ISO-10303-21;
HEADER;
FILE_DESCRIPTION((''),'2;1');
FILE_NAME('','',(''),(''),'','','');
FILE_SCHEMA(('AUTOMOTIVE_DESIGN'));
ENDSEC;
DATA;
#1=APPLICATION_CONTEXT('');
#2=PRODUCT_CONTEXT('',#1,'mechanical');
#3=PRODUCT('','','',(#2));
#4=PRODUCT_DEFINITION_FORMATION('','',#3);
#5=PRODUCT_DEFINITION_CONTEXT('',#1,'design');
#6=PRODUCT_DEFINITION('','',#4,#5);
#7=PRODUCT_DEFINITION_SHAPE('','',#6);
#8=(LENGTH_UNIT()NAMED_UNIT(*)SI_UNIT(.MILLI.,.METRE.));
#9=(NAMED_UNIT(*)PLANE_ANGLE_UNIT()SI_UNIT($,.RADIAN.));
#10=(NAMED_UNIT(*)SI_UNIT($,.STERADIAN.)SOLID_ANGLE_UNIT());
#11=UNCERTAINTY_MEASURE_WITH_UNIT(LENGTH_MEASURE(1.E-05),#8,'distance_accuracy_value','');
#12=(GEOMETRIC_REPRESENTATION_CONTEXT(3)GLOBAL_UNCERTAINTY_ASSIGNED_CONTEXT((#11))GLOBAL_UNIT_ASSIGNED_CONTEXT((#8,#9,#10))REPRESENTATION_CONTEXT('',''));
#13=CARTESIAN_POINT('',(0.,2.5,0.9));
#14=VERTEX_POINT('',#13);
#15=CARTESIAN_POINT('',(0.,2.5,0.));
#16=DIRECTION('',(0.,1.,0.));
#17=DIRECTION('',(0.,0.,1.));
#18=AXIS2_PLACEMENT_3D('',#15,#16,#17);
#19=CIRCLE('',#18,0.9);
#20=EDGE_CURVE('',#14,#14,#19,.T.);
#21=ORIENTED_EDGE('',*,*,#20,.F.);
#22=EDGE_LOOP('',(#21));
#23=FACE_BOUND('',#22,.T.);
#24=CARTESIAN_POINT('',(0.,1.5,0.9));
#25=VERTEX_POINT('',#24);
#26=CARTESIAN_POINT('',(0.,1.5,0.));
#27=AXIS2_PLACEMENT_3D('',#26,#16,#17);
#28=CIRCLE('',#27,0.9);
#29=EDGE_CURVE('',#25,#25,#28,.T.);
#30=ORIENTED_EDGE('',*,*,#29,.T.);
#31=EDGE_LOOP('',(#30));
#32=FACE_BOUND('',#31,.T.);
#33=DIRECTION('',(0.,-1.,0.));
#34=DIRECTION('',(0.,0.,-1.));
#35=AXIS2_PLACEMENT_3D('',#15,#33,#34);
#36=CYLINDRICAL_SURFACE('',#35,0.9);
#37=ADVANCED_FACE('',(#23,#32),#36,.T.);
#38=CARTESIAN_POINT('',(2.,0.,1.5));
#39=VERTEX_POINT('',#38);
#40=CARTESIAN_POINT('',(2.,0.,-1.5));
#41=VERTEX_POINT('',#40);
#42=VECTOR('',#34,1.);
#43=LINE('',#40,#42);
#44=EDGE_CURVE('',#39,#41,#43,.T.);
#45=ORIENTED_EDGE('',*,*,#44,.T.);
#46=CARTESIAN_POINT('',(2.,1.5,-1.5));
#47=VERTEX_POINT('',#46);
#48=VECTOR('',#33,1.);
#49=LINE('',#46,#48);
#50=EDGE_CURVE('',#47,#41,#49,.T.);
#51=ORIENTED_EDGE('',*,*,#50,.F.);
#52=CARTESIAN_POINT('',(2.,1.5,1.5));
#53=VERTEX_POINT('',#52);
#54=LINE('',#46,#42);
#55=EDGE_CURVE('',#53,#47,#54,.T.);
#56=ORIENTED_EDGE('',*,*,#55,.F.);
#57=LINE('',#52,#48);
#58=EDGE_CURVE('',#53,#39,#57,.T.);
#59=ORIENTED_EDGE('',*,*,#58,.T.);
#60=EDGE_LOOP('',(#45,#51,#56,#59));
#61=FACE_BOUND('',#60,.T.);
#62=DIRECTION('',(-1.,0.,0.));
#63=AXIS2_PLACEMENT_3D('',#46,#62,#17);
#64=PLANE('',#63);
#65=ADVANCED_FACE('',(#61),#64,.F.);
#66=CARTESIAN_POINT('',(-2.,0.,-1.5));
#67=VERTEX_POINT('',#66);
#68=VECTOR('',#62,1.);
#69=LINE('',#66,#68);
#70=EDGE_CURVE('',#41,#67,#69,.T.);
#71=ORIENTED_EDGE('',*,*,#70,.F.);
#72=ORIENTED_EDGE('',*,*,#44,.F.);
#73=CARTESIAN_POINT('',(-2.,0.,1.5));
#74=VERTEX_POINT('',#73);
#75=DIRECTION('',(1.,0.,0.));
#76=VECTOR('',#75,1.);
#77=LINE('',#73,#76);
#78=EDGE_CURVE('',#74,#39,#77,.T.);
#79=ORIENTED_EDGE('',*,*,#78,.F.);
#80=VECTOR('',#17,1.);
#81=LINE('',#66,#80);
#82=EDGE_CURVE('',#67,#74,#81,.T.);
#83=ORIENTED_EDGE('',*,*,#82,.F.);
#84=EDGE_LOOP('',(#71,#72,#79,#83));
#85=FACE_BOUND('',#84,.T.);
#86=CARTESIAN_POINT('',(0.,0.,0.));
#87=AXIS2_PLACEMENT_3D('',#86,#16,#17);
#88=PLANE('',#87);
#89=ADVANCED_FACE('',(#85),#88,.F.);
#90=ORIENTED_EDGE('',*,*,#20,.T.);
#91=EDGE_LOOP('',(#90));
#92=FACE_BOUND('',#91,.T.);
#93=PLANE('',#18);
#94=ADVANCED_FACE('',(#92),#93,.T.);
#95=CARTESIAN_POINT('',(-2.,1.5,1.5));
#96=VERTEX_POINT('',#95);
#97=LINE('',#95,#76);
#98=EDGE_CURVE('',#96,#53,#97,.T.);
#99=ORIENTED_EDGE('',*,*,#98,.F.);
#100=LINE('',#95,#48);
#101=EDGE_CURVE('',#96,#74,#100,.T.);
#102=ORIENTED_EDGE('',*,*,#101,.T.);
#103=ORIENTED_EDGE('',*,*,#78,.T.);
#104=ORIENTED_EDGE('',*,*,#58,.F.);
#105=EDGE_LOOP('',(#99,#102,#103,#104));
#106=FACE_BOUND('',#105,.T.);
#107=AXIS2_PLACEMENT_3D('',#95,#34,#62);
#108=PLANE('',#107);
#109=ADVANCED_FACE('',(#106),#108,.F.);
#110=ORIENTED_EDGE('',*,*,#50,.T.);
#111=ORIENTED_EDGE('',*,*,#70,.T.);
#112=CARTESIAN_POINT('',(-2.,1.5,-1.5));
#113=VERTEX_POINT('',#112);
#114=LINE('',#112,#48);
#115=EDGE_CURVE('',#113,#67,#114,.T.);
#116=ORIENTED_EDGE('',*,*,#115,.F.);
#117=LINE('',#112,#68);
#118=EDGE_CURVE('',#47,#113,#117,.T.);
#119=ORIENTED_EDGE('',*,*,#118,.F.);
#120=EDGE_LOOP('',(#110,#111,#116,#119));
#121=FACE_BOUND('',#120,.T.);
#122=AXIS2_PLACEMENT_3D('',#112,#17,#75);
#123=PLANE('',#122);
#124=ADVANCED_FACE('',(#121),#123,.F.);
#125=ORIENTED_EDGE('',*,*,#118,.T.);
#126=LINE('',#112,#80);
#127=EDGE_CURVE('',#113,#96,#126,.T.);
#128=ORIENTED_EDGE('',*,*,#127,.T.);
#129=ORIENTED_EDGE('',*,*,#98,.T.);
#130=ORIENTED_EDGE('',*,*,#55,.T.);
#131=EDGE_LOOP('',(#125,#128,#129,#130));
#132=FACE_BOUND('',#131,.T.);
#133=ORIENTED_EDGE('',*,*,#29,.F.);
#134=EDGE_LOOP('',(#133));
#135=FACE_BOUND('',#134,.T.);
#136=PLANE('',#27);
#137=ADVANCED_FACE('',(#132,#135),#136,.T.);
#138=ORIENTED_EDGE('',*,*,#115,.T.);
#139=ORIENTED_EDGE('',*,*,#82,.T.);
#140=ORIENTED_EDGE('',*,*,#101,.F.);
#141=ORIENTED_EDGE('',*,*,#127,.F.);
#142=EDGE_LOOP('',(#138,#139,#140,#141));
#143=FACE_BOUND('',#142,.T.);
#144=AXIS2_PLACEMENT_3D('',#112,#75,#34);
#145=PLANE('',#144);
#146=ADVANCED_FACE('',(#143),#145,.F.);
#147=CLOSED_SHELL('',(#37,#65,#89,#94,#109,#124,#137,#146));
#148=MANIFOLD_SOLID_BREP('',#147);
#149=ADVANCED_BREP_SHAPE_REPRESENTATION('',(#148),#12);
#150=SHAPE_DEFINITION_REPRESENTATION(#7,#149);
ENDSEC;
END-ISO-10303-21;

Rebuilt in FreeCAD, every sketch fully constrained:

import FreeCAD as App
import Part
import Sketcher
Q = App.Units.Quantity

doc = App.newDocument("Part")
body = doc.addObject("PartDesign::Body", "Body")

# Sketch on XZ plane
sketch1 = body.newObject("Sketcher::SketchObject", "Sketch")
sketch1.AttachmentSupport = (doc.getObject("XZ_Plane"), [""])
sketch1.MapMode = "FlatFace"
sketch1.addGeometry([
    Part.LineSegment(App.Vector(-2, -1.5, 0), App.Vector(-2, 1.5, 0)),
    Part.LineSegment(App.Vector(-2, 1.5, 0), App.Vector(2, 1.5, 0)),
    Part.LineSegment(App.Vector(2, 1.5, 0), App.Vector(2, -1.5, 0)),
    Part.LineSegment(App.Vector(2, -1.5, 0), App.Vector(-2, -1.5, 0)),
], False)
sketch1.addConstraint([
    Sketcher.Constraint("Coincident", 0, 2, 1, 1),
    Sketcher.Constraint("Coincident", 1, 2, 2, 1),
    Sketcher.Constraint("Coincident", 2, 2, 3, 1),
    Sketcher.Constraint("Coincident", 3, 2, 0, 1),
    Sketcher.Constraint("Vertical", 0),
    Sketcher.Constraint("Horizontal", 1),
    Sketcher.Constraint("Vertical", 2),
    Sketcher.Constraint("Horizontal", 3),
    Sketcher.Constraint("Symmetric", 0, 2, 2, 2, -1, 1),
    Sketcher.Constraint("DistanceX", 1, 1, 1, 2, Q("4 mm")),
    Sketcher.Constraint("DistanceY", 0, 1, 0, 2, Q("3 mm")),
])
pad1 = body.newObject("PartDesign::Pad", "Pad")
pad1.Profile = sketch1
pad1.Length = 1.5
pad1.Reversed = True

# Sketch on XZ plane
sketch2 = body.newObject("Sketcher::SketchObject", "Sketch001")
sketch2.AttachmentSupport = (doc.getObject("XZ_Plane"), [""])
sketch2.MapMode = "FlatFace"
sketch2.AttachmentOffset = App.Placement(App.Vector(0, 0, -1.5), App.Rotation())
sketch2.addGeometry(Part.Circle(App.Vector(0, 0, 0), App.Vector(0, 0, 1), 0.9), False)
sketch2.addConstraint([
    Sketcher.Constraint("Coincident", 0, 3, -1, 1),
    Sketcher.Constraint("Diameter", 0, Q("1.8 mm")),
])
pad2 = body.newObject("PartDesign::Pad", "Pad001")
pad2.Profile = sketch2
pad2.Length = 1
pad2.Reversed = True

doc.recompute()
